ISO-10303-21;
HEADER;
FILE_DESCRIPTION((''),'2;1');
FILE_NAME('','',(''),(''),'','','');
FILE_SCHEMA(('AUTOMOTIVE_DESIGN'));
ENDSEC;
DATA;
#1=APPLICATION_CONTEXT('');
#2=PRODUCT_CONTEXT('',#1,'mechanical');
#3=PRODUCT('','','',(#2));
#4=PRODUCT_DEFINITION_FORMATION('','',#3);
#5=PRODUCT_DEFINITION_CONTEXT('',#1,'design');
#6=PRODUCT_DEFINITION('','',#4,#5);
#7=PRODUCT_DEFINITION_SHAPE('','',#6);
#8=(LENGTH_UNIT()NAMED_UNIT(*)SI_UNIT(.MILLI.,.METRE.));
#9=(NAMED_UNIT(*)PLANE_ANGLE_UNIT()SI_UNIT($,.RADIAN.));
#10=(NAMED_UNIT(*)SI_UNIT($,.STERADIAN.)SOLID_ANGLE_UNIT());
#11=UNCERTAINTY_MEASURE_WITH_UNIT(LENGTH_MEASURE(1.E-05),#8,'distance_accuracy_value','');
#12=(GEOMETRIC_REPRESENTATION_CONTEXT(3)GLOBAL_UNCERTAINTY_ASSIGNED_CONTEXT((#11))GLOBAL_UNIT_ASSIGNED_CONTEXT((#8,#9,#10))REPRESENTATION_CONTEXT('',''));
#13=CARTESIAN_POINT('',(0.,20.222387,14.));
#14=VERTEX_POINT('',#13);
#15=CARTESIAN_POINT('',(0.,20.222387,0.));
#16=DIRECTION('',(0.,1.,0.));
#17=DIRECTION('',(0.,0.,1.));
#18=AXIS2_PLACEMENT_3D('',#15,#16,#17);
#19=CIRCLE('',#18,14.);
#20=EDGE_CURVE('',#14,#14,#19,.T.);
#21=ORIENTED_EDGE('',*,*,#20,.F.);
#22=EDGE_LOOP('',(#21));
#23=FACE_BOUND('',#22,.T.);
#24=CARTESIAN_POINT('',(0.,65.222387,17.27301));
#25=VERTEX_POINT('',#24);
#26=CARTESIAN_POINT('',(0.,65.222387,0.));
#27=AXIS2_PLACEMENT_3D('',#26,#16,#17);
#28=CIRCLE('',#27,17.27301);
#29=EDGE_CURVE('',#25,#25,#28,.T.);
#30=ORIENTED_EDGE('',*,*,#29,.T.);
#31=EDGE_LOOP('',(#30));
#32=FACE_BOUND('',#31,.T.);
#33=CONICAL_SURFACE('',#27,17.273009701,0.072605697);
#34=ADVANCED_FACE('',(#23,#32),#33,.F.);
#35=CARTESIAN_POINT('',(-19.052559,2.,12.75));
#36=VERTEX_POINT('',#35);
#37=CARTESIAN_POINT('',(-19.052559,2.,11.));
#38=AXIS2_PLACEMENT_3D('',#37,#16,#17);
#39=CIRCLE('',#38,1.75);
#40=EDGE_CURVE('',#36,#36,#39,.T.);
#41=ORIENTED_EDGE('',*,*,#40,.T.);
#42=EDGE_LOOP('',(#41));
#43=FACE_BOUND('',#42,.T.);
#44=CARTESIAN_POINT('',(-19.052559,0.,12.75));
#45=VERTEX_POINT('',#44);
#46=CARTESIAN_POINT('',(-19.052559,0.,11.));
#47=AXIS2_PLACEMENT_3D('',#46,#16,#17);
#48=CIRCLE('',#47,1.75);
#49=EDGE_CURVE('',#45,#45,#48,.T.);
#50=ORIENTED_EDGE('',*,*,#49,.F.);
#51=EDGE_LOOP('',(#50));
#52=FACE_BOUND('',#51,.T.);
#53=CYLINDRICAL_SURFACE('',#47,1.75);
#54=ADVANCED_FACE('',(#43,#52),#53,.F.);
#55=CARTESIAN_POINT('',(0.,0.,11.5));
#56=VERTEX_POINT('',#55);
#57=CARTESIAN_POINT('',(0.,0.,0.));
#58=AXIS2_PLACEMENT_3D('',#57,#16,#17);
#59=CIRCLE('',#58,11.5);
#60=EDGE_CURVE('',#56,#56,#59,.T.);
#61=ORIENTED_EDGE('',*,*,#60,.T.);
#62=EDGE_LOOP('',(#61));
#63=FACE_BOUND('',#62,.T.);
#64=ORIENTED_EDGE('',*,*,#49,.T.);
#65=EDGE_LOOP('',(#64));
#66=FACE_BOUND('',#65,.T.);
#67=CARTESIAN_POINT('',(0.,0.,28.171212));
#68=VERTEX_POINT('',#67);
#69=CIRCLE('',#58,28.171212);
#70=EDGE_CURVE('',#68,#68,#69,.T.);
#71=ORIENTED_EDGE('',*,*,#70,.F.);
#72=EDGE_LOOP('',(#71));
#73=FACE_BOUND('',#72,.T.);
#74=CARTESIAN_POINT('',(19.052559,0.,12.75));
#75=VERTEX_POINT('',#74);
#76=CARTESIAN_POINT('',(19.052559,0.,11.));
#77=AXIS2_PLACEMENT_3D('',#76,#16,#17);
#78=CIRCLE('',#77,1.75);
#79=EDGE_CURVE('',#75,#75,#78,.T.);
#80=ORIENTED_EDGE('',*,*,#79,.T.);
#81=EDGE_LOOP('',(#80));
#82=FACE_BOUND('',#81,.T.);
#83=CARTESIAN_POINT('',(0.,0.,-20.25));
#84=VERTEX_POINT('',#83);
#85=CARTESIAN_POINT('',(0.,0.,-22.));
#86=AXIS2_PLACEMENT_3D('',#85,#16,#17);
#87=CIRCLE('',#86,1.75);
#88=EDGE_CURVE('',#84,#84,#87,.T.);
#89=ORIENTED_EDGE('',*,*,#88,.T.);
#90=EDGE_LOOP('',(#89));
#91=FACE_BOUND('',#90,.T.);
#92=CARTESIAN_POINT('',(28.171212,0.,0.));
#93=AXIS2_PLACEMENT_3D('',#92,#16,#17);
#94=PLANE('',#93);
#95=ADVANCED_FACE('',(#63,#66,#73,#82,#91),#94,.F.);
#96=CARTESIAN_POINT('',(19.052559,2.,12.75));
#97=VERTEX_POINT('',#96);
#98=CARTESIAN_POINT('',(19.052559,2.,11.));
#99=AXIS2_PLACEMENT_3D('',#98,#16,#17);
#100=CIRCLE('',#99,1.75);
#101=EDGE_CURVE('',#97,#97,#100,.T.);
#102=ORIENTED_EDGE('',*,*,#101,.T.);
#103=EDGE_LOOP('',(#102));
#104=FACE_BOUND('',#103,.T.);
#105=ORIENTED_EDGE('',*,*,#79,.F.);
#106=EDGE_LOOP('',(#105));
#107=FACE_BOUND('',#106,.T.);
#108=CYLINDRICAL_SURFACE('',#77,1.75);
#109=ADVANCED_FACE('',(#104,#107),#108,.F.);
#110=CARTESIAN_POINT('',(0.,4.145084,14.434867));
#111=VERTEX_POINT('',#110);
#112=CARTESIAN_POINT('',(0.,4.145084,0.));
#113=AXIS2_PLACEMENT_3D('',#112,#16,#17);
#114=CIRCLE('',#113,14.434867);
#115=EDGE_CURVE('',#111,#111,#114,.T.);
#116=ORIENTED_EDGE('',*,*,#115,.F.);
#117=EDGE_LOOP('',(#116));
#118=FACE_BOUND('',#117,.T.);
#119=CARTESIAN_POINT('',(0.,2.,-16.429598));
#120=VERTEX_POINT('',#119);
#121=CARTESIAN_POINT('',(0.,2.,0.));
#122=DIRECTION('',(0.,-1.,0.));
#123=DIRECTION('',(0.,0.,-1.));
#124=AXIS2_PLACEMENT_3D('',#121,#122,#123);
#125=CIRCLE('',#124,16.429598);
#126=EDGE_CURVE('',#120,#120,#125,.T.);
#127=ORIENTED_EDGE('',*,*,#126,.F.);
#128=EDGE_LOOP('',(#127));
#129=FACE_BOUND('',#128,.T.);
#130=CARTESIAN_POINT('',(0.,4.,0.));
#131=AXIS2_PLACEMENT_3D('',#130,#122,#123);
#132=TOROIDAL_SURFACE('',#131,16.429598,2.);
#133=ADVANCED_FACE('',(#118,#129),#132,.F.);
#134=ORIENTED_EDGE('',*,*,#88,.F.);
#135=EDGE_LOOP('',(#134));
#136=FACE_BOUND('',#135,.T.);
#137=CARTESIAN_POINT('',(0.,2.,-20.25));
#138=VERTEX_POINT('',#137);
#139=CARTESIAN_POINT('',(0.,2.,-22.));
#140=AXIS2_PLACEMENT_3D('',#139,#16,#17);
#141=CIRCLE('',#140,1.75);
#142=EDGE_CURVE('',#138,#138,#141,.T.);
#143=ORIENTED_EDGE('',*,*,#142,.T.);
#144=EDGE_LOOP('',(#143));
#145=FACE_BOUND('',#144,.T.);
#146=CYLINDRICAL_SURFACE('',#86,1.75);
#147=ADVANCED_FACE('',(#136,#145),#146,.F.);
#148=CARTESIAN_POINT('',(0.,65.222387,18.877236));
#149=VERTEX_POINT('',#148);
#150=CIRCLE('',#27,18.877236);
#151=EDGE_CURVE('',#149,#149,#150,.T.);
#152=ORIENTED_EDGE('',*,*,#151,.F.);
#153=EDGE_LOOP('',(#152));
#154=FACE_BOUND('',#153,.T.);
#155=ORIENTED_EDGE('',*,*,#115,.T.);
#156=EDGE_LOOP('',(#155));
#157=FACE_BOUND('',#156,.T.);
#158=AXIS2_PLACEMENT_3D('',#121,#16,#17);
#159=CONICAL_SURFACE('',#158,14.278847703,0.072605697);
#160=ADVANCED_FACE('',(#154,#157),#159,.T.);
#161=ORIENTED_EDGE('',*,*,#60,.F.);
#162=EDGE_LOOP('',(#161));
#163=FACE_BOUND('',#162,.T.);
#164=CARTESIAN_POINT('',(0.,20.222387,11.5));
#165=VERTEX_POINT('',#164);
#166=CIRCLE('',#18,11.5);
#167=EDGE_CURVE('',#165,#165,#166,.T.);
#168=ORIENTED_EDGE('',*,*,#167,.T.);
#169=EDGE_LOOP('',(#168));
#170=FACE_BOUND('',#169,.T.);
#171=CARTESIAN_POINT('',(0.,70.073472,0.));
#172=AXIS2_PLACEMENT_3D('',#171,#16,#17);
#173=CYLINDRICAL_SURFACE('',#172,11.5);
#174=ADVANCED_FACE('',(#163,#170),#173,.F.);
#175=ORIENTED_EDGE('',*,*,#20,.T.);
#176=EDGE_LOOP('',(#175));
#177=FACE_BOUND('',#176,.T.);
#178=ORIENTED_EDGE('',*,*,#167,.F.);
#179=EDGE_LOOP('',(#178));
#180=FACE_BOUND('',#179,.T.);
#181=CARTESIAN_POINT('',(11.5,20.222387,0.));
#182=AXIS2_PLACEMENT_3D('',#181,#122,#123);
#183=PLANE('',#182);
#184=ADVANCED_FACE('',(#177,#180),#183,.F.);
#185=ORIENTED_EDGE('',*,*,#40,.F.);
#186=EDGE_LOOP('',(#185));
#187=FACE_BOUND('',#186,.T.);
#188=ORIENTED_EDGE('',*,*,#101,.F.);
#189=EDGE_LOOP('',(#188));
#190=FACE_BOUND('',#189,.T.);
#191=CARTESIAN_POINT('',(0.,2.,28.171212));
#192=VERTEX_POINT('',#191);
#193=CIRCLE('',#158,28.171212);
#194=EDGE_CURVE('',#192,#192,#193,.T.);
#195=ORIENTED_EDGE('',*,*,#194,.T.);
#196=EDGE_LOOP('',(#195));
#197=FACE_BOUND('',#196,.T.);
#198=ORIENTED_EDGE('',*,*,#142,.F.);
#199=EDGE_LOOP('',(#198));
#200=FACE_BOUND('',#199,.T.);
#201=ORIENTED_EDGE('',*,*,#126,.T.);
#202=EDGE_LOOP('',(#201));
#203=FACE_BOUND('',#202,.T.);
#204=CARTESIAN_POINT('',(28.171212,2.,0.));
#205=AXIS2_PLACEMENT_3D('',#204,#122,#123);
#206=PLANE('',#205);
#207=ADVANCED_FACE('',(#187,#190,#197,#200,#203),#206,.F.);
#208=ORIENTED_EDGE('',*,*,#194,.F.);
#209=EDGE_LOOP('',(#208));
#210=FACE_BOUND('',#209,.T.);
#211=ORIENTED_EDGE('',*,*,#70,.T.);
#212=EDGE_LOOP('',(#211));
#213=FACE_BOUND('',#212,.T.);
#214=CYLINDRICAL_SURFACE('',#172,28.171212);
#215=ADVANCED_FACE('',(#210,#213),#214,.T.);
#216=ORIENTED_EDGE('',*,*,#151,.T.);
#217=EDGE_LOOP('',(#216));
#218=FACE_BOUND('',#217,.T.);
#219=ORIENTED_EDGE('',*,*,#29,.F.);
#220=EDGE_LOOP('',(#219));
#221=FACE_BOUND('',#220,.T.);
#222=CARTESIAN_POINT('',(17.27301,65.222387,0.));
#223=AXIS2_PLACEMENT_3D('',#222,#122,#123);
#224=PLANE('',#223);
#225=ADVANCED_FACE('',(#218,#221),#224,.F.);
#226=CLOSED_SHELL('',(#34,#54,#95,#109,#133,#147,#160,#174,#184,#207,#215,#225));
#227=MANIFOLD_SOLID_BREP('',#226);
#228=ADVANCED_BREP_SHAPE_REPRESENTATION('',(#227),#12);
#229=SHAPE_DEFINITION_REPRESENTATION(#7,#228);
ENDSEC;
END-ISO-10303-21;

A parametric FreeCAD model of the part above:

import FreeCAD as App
import Part
import Sketcher

V = App.Vector
Q = App.Units.Quantity


def edges_at(feature, points):
    """Names of the edges that pass closest to the given points."""
    edges = feature.Shape.Edges
    near = lambda p: min(range(len(edges)), key=lambda i: edges[i].distToShape(Part.Vertex(*p))[0])
    return sorted({f"Edge{near(p) + 1}" for p in points})

doc = App.newDocument("Part")
body = doc.addObject("PartDesign::Body", "Body")

# Sketch on XY plane
sketch1 = doc.addObject("Sketcher::SketchObject", "Sketch")
body.addObject(sketch1)
sketch1.AttachmentSupport = (doc.XY_Plane, [""])
sketch1.MapMode = "FlatFace"
sketch1.addGeometry(Part.LineSegment(V(11.5, 20.222387, 0), V(11.5, 0, 0)), False)
sketch1.addGeometry(Part.LineSegment(V(11.5, 0, 0), V(28.171212, 0, 0)), False)
sketch1.addGeometry(Part.LineSegment(V(28.171212, 0, 0), V(28.171212, 2, 0)), False)
sketch1.addGeometry(Part.LineSegment(V(28.171212, 2, 0), V(14.278848, 2, 0)), False)
sketch1.addGeometry(Part.LineSegment(V(14.278848, 2, 0), V(18.877236, 65.222387, 0)), False)
sketch1.addGeometry(Part.LineSegment(V(18.877236, 65.222387, 0), V(17.27301, 65.222387, 0)), False)
sketch1.addGeometry(Part.LineSegment(V(17.27301, 65.222387, 0), V(14, 20.222387, 0)), False)
sketch1.addGeometry(Part.LineSegment(V(14, 20.222387, 0), V(11.5, 20.222387, 0)), False)
sketch1.addConstraint(Sketcher.Constraint("Coincident", 0, 2, 1, 1))
sketch1.addConstraint(Sketcher.Constraint("Coincident", 1, 2, 2, 1))
sketch1.addConstraint(Sketcher.Constraint("Coincident", 2, 2, 3, 1))
sketch1.addConstraint(Sketcher.Constraint("Coincident", 3, 2, 4, 1))
sketch1.addConstraint(Sketcher.Constraint("Coincident", 4, 2, 5, 1))
sketch1.addConstraint(Sketcher.Constraint("Coincident", 5, 2, 6, 1))
sketch1.addConstraint(Sketcher.Constraint("Coincident", 6, 2, 7, 1))
sketch1.addConstraint(Sketcher.Constraint("Coincident", 7, 2, 0, 1))
sketch1.addConstraint(Sketcher.Constraint("Vertical", 0))
sketch1.addConstraint(Sketcher.Constraint("Horizontal", 1))
sketch1.addConstraint(Sketcher.Constraint("Vertical", 2))
sketch1.addConstraint(Sketcher.Constraint("Horizontal", 3))
sketch1.addConstraint(Sketcher.Constraint("Horizontal", 5))
sketch1.addConstraint(Sketcher.Constraint("Horizontal", 7))
sketch1.addConstraint(Sketcher.Constraint("PointOnObject", 0, 2, -1))
sketch1.addConstraint(Sketcher.Constraint("Parallel", 4, 6))
sketch1.addConstraint(Sketcher.Constraint("DistanceY", 2, 1, 2, 2, Q("2 mm")))
sketch1.addConstraint(Sketcher.Constraint("DistanceX", 7, 2, 7, 1, Q("2.5 mm")))
sketch1.addConstraint(Sketcher.Constraint("DistanceX", -1, 1, 6, 2, Q("14 mm")))
sketch1.addConstraint(Sketcher.Constraint("DistanceY", 6, 2, 5, 2, Q("45 mm")))
sketch1.addConstraint(Sketcher.Constraint("Angle", 4, Q("85.84 deg")))
sketch1.addConstraint(Sketcher.Constraint("DistanceX", 1, 1, 1, 2, Q("16.671212 mm")))
sketch1.addConstraint(Sketcher.Constraint("DistanceX", 3, 2, 3, 1, Q("13.892364 mm")))
sketch1.addConstraint(Sketcher.Constraint("DistanceX", 5, 2, 5, 1, Q("1.604227 mm")))
revolution = doc.addObject("PartDesign::Revolution", "Revolution")
body.addObject(revolution)
revolution.Profile = sketch1
revolution.ReferenceAxis = (sketch1, ["V_Axis"])
revolution.Angle = 360
doc.recompute()

fillet = doc.addObject("PartDesign::Fillet", "Fillet")
body.addObject(fillet)
fillet.Base = (revolution, edges_at(revolution, [(0, 2, -14.279)]))
fillet.Radius = 2

# Sketch on XZ plane
sketch2 = doc.addObject("Sketcher::SketchObject", "Sketch001")
body.addObject(sketch2)
sketch2.AttachmentSupport = (doc.XZ_Plane, [""])
sketch2.MapMode = "FlatFace"
sketch2.AttachmentOffset = App.Placement(V(0, 0, -2), App.Rotation())
sketch2.addGeometry(Part.Circle(V(0, -22, 0), V(0, 0, 1), 1.75), False)
sketch2.addGeometry(Part.Circle(V(19.052559, 11, 0), V(0, 0, 1), 1.75), False)
sketch2.addGeometry(Part.Circle(V(-19.052559, 11, 0), V(0, 0, 1), 1.75), False)
sketch2.addConstraint(Sketcher.Constraint("Equal", 0, 1))
sketch2.addConstraint(Sketcher.Constraint("Equal", 1, 2))
sketch2.addConstraint(Sketcher.Constraint("Symmetric", 1, 3, 2, 3, -2))
sketch2.addConstraint(Sketcher.Constraint("PointOnObject", 0, 3, -2))
sketch2.addConstraint(Sketcher.Constraint("Diameter", 0, Q("3.5 mm")))
sketch2.addConstraint(Sketcher.Constraint("DistanceY", 0, 3, -1, 1, Q("22 mm")))
sketch2.addConstraint(Sketcher.Constraint("DistanceY", -1, 1, 1, 3, Q("11 mm")))
sketch2.addConstraint(Sketcher.Constraint("DistanceX", -1, 1, 1, 3, Q("19.052559 mm")))
pocket1 = doc.addObject("PartDesign::Pocket", "Pocket")
body.addObject(pocket1)
pocket1.Profile = sketch2
pocket1.Type = "ThroughAll"
pocket1.Reversed = True

doc.recompute()
